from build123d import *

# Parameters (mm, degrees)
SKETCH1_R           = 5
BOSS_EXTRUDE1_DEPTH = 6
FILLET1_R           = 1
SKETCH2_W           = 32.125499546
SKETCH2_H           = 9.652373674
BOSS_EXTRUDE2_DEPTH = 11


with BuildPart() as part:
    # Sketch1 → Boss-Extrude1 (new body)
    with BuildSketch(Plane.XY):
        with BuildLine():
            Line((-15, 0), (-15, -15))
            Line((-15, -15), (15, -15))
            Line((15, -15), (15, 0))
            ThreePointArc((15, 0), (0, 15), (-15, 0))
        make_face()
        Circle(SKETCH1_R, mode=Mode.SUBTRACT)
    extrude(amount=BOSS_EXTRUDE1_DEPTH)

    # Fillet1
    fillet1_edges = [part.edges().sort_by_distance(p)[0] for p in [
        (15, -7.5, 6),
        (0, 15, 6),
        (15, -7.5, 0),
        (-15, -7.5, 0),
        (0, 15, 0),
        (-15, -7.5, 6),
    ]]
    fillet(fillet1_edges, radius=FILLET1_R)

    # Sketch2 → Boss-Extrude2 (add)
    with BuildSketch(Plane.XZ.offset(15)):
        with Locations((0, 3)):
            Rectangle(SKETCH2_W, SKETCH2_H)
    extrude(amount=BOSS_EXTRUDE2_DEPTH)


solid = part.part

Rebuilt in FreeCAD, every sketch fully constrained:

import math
import FreeCAD as App
import Part
import Sketcher


def edges_at(feature, points):
    """Names of the edges that pass closest to the given points."""
    edges = feature.Shape.Edges
    near = lambda p: min(range(len(edges)), key=lambda i: edges[i].distToShape(Part.Vertex(*p))[0])
    return sorted({f"Edge{near(p) + 1}" for p in points})


def add_polygon(sketch, points):
    """Adds a closed chain of lines whose ends are joined by coincident constraints."""
    first, n = sketch.GeometryCount, len(points)
    for a, b in zip(points, points[1:] + points[:1]):
        sketch.addGeometry(Part.LineSegment(App.Vector(*a, 0), App.Vector(*b, 0)), False)
    for i in range(n):
        sketch.addConstraint(Sketcher.Constraint("Coincident", first + i, 2, first + (i + 1) % n, 1))

doc = App.newDocument("Part")
body = doc.addObject("PartDesign::Body", "Body")

# Sketch on XY plane
sketch1 = body.newObject("Sketcher::SketchObject", "Sketch")
sketch1.AttachmentSupport = (doc.getObject("XY_Plane"), [""])
sketch1.MapMode = "FlatFace"
sketch1.addGeometry(Part.LineSegment(App.Vector(-15, 0, 0), App.Vector(-15, -15, 0)), False)
sketch1.addGeometry(Part.LineSegment(App.Vector(-15, -15, 0), App.Vector(15, -15, 0)), False)
sketch1.addGeometry(Part.LineSegment(App.Vector(15, -15, 0), App.Vector(15, 0, 0)), False)
sketch1.addGeometry(Part.ArcOfCircle(Part.Circle(App.Vector(0, 0, 0), App.Vector(0, 0, 1), 15), math.radians(0), math.radians(180)), False)
sketch1.addGeometry(Part.Circle(App.Vector(0, 0, 0), App.Vector(0, 0, 1), 5), False)
sketch1.addConstraint(Sketcher.Constraint("Coincident", 0, 2, 1, 1))
sketch1.addConstraint(Sketcher.Constraint("Coincident", 1, 2, 2, 1))
sketch1.addConstraint(Sketcher.Constraint("Tangent", 2, 2, 3, 1))
sketch1.addConstraint(Sketcher.Constraint("Tangent", 3, 2, 0, 1))
sketch1.addConstraint(Sketcher.Constraint("Vertical", 0))
sketch1.addConstraint(Sketcher.Constraint("Horizontal", 1))
sketch1.addConstraint(Sketcher.Constraint("Vertical", 2))
sketch1.addConstraint(Sketcher.Constraint("Coincident", 3, 3, -1, 1))
sketch1.addConstraint(Sketcher.Constraint("Coincident", 4, 3, -1, 1))
sketch1.addConstraint(Sketcher.Constraint("Diameter", 4, 10.0))
sketch1.addConstraint(Sketcher.Constraint("Radius", 3, 15.0))
sketch1.addConstraint(Sketcher.Constraint("DistanceY", 0, 2, 0, 1, 15.0))
pad1 = body.newObject("PartDesign::Pad", "Pad")
pad1.Profile = sketch1
pad1.Length = 6
doc.recompute()

fillet = body.newObject("PartDesign::Fillet", "Fillet")
fillet.Base = (pad1, edges_at(pad1, [
    (15, -7.5, 6),
    (0, 15, 6),
    (15, -7.5, 0),
    (-15, -7.5, 0),
    (0, 15, 0),
    (-15, -7.5, 6),
]))
fillet.Radius = 1

# Sketch on XZ plane
sketch2 = body.newObject("Sketcher::SketchObject", "Sketch001")
sketch2.AttachmentSupport = (doc.getObject("XZ_Plane"), [""])
sketch2.MapMode = "FlatFace"
sketch2.AttachmentOffset = App.Placement(App.Vector(0, 0, 15), App.Rotation())
add_polygon(sketch2, [(-16.06275, 7.826187), (-16.06275, -1.826187), (16.06275, -1.826187), (16.06275, 7.826187)])  # lines 0-3
sketch2.addConstraint(Sketcher.Constraint("Vertical", 0))
sketch2.addConstraint(Sketcher.Constraint("Horizontal", 1))
sketch2.addConstraint(Sketcher.Constraint("Vertical", 2))
sketch2.addConstraint(Sketcher.Constraint("Horizontal", 3))
sketch2.addConstraint(Sketcher.Constraint("DistanceX", 1, 1, 1, 2, 32.1255))
sketch2.addConstraint(Sketcher.Constraint("DistanceY", 0, 2, 0, 1, 9.652374))
sketch2.addConstraint(Sketcher.Constraint("DistanceX", 0, 2, -1, 1, 16.06275))
sketch2.addConstraint(Sketcher.Constraint("DistanceY", 0, 2, -1, 1, 1.826187))
pad2 = body.newObject("PartDesign::Pad", "Pad001")
pad2.Profile = sketch2
pad2.Length = 11

doc.recompute()
